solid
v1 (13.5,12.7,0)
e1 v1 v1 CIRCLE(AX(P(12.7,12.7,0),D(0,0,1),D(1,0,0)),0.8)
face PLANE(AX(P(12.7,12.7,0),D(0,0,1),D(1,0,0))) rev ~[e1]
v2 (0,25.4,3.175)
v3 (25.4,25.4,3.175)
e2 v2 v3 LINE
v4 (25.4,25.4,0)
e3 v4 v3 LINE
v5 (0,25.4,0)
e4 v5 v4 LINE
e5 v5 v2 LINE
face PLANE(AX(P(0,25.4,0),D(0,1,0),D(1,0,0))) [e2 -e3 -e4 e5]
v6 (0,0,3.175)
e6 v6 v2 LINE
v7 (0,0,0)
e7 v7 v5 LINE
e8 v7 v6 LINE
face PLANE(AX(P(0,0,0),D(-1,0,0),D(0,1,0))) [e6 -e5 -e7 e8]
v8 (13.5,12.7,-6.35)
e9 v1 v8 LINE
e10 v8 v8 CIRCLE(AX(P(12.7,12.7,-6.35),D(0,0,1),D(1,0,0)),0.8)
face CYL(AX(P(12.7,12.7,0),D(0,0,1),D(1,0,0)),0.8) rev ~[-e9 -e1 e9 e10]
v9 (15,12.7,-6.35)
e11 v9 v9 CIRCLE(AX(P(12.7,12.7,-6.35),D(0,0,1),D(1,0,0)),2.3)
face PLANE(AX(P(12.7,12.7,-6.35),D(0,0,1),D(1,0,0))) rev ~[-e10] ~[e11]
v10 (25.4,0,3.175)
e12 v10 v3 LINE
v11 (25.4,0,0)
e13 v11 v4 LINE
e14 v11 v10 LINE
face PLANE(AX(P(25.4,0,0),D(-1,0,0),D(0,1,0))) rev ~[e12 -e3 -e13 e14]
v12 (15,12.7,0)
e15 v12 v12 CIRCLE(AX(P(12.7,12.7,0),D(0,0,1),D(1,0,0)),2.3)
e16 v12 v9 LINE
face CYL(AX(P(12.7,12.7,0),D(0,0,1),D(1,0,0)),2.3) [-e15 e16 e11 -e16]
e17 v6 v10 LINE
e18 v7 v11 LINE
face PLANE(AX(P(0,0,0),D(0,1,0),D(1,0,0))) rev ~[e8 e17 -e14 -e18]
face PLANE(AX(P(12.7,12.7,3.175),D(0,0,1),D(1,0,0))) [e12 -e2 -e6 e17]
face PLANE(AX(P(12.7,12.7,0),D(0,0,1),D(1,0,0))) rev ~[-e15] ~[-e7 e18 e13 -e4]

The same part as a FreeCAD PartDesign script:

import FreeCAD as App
import Part
import Sketcher
from FreeCAD import Vector
Q = App.Units.Quantity

doc = App.newDocument("Part")
body = doc.addObject("PartDesign::Body", "Body")

sketch1 = body.newObject("Sketcher::SketchObject", "Sketch")
sketch1.AttachmentSupport = (doc.getObject("XY_Plane"), [""])
sketch1.MapMode = "FlatFace"
sketch1.addGeometry([
    Part.LineSegment(Vector(0, 25.4, 0), Vector(0, 0, 0)),
    Part.LineSegment(Vector(0, 0, 0), Vector(25.4, 0, 0)),
    Part.LineSegment(Vector(25.4, 0, 0), Vector(25.4, 25.4, 0)),
    Part.LineSegment(Vector(25.4, 25.4, 0), Vector(0, 25.4, 0)),
], False)
sketch1.addConstraint([
    Sketcher.Constraint("Coincident", 0, 2, 1, 1),
    Sketcher.Constraint("Coincident", 1, 2, 2, 1),
    Sketcher.Constraint("Coincident", 2, 2, 3, 1),
    Sketcher.Constraint("Coincident", 3, 2, 0, 1),
    Sketcher.Constraint("Vertical", 0),
    Sketcher.Constraint("Horizontal", 1),
    Sketcher.Constraint("Vertical", 2),
    Sketcher.Constraint("Horizontal", 3),
    Sketcher.Constraint("Coincident", 0, 2, -1, 1),
    Sketcher.Constraint("Equal", 3, 0),
    Sketcher.Constraint("DistanceX", 1, 1, 1, 2, Q("1 in")),
])
pad1 = body.newObject("PartDesign::Pad", "Pad")
pad1.Profile = sketch1
pad1.Length = Q("0.125 in")

sketch2 = body.newObject("Sketcher::SketchObject", "Sketch001")
sketch2.AttachmentSupport = (doc.getObject("XY_Plane"), [""])
sketch2.MapMode = "FlatFace"
sketch2.addGeometry([
    Part.Circle(Vector(12.7, 12.7, 0), Vector(0, 0, 1), 2.3),
    Part.Circle(Vector(12.7, 12.7, 0), Vector(0, 0, 1), 0.8),
], False)
sketch2.addConstraint([
    Sketcher.Constraint("Coincident", 1, 3, 0, 3),
    Sketcher.Constraint("DistanceX", -1, 1, 0, 3, Q("0.5 in")),
    Sketcher.Constraint("DistanceY", -1, 1, 0, 3, Q("0.5 in")),
    Sketcher.Constraint("Diameter", 0, Q("4.6 mm")),
    Sketcher.Constraint("Diameter", 1, Q("1.6 mm")),
])
pad2 = body.newObject("PartDesign::Pad", "Pad001")
pad2.Profile = sketch2
pad2.Length = Q("0.25 in")
pad2.Reversed = True

doc.recompute()
